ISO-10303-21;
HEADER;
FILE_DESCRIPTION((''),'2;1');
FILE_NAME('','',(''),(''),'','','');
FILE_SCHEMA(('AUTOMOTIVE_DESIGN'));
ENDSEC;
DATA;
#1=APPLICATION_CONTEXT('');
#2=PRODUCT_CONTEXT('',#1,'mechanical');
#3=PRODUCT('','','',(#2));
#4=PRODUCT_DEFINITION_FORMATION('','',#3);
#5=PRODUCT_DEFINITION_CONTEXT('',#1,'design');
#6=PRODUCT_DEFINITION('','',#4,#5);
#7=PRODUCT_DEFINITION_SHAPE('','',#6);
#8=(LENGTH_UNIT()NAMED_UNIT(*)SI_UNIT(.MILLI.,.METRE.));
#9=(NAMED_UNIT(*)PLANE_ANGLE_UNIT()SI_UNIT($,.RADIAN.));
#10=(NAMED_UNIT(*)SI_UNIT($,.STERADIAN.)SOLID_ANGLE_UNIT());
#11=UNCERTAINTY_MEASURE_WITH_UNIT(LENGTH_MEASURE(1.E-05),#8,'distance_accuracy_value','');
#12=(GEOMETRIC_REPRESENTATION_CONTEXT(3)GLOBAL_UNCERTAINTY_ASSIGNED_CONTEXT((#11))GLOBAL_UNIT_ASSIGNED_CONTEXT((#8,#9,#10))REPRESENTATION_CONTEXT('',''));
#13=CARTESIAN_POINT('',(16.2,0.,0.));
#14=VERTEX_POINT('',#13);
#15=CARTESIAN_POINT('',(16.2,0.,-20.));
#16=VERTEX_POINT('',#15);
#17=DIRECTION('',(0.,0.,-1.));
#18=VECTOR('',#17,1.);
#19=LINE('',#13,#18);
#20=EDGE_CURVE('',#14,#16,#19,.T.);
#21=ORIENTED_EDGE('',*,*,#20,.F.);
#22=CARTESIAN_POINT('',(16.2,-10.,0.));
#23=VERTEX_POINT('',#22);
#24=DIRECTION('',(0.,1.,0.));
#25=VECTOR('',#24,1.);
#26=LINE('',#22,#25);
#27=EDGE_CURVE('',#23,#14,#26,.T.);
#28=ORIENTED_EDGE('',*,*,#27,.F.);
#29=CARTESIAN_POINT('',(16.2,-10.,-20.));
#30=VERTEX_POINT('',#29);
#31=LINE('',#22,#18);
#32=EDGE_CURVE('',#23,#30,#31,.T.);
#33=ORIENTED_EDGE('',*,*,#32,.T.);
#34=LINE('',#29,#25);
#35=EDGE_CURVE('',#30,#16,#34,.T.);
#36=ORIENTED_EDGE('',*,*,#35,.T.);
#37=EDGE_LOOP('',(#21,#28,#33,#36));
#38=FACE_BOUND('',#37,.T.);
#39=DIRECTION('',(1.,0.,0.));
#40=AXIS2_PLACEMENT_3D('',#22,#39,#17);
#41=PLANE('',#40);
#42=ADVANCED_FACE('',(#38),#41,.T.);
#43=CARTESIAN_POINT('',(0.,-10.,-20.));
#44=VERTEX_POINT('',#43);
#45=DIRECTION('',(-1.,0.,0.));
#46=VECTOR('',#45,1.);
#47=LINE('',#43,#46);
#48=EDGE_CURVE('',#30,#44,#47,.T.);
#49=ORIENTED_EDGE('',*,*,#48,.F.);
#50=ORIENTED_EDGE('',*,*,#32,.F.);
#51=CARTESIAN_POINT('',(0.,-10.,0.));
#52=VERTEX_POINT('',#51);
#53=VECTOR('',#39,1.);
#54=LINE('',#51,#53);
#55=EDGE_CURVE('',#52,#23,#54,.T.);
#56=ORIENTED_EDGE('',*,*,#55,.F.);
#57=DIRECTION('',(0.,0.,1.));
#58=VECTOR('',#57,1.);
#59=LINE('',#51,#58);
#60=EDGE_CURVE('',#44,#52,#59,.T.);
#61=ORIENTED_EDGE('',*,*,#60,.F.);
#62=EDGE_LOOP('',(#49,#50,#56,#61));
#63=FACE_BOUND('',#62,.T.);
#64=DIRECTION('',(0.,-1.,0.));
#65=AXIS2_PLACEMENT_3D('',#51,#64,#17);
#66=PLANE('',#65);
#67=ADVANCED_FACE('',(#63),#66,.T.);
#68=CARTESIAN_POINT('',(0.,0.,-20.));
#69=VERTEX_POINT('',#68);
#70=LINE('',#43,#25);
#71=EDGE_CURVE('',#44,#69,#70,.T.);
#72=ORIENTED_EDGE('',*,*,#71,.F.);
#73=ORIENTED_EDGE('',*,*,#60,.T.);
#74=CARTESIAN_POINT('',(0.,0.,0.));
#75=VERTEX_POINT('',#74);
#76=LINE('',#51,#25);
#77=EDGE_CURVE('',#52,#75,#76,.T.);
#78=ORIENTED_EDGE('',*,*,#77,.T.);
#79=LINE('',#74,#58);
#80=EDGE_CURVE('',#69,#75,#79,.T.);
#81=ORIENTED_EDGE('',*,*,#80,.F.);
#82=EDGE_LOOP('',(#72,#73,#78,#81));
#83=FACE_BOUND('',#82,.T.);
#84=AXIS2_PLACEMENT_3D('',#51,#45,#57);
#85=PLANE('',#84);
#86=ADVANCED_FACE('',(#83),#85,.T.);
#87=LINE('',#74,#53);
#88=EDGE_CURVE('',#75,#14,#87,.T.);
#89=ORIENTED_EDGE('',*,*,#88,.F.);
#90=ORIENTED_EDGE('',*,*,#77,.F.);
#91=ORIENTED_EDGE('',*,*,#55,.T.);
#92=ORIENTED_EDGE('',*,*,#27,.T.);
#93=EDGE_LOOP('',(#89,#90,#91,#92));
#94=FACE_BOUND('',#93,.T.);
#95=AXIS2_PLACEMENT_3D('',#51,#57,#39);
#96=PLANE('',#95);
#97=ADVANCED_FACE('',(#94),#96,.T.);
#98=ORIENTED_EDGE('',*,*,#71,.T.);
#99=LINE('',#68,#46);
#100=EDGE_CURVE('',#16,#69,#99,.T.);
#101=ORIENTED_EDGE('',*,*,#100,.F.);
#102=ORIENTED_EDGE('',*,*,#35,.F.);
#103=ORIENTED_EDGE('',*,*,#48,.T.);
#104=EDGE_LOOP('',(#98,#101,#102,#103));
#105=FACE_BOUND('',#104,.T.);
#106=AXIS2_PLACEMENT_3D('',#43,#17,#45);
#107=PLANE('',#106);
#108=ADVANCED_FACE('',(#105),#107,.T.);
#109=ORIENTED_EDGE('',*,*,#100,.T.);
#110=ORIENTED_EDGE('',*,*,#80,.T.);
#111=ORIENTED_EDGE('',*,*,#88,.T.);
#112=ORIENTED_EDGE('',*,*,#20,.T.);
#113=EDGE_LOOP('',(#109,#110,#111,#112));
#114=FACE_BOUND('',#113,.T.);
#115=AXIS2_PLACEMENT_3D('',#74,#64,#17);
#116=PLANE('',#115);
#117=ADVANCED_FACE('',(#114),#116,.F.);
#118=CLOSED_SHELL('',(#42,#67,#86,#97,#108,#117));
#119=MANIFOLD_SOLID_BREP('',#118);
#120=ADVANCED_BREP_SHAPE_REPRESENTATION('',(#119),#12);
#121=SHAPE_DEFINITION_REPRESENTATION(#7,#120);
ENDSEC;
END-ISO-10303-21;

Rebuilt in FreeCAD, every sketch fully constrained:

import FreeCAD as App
import Part
import Sketcher


def add_polygon(sketch, points):
    """Adds a closed chain of lines whose ends are joined by coincident constraints."""
    first, n = sketch.GeometryCount, len(points)
    for a, b in zip(points, points[1:] + points[:1]):
        sketch.addGeometry(Part.LineSegment(App.Vector(*a, 0), App.Vector(*b, 0)), False)
    for i in range(n):
        sketch.addConstraint(Sketcher.Constraint("Coincident", first + i, 2, first + (i + 1) % n, 1))

doc = App.newDocument("Part")
params = doc.addObject("Spreadsheet::Sheet", "Params")
for row, (alias, value) in enumerate([
    ("sketch1_height", "20 mm"),
    ("sketch1_width", "16.2 mm"),
    ("pad1_length", "10 mm"),
], start=1):
    params.set(f"A{row}", alias)
    params.set(f"B{row}", "=" + value)
    params.setAlias(f"B{row}", alias)

body = doc.addObject("PartDesign::Body", "Body")

sketch1 = body.newObject("Sketcher::SketchObject", "Sketch")
sketch1.AttachmentSupport = (doc.getObject("XZ_Plane"), [""])
sketch1.MapMode = "FlatFace"
add_polygon(sketch1, [(0, -20), (0, 0), (16, 0), (16, -20)])
sketch1.addConstraint([
    Sketcher.Constraint("Vertical", 0),
    Sketcher.Constraint("Horizontal", 1),
    Sketcher.Constraint("Vertical", 2),
    Sketcher.Constraint("Horizontal", 3),
    Sketcher.Constraint("Coincident", 0, 2, -1, 1),
    Sketcher.Constraint("DistanceY", 0, 1, 0, 2, 20.0),
    Sketcher.Constraint("DistanceX", 1, 1, 1, 2, 16.2),
])
sketch1.setExpression("Constraints[9]", "Params.sketch1_height")
sketch1.setExpression("Constraints[10]", "Params.sketch1_width")
pad1 = body.newObject("PartDesign::Pad", "Pad")
pad1.Profile = sketch1
pad1.setExpression("Length", "Params.pad1_length")

doc.recompute()
